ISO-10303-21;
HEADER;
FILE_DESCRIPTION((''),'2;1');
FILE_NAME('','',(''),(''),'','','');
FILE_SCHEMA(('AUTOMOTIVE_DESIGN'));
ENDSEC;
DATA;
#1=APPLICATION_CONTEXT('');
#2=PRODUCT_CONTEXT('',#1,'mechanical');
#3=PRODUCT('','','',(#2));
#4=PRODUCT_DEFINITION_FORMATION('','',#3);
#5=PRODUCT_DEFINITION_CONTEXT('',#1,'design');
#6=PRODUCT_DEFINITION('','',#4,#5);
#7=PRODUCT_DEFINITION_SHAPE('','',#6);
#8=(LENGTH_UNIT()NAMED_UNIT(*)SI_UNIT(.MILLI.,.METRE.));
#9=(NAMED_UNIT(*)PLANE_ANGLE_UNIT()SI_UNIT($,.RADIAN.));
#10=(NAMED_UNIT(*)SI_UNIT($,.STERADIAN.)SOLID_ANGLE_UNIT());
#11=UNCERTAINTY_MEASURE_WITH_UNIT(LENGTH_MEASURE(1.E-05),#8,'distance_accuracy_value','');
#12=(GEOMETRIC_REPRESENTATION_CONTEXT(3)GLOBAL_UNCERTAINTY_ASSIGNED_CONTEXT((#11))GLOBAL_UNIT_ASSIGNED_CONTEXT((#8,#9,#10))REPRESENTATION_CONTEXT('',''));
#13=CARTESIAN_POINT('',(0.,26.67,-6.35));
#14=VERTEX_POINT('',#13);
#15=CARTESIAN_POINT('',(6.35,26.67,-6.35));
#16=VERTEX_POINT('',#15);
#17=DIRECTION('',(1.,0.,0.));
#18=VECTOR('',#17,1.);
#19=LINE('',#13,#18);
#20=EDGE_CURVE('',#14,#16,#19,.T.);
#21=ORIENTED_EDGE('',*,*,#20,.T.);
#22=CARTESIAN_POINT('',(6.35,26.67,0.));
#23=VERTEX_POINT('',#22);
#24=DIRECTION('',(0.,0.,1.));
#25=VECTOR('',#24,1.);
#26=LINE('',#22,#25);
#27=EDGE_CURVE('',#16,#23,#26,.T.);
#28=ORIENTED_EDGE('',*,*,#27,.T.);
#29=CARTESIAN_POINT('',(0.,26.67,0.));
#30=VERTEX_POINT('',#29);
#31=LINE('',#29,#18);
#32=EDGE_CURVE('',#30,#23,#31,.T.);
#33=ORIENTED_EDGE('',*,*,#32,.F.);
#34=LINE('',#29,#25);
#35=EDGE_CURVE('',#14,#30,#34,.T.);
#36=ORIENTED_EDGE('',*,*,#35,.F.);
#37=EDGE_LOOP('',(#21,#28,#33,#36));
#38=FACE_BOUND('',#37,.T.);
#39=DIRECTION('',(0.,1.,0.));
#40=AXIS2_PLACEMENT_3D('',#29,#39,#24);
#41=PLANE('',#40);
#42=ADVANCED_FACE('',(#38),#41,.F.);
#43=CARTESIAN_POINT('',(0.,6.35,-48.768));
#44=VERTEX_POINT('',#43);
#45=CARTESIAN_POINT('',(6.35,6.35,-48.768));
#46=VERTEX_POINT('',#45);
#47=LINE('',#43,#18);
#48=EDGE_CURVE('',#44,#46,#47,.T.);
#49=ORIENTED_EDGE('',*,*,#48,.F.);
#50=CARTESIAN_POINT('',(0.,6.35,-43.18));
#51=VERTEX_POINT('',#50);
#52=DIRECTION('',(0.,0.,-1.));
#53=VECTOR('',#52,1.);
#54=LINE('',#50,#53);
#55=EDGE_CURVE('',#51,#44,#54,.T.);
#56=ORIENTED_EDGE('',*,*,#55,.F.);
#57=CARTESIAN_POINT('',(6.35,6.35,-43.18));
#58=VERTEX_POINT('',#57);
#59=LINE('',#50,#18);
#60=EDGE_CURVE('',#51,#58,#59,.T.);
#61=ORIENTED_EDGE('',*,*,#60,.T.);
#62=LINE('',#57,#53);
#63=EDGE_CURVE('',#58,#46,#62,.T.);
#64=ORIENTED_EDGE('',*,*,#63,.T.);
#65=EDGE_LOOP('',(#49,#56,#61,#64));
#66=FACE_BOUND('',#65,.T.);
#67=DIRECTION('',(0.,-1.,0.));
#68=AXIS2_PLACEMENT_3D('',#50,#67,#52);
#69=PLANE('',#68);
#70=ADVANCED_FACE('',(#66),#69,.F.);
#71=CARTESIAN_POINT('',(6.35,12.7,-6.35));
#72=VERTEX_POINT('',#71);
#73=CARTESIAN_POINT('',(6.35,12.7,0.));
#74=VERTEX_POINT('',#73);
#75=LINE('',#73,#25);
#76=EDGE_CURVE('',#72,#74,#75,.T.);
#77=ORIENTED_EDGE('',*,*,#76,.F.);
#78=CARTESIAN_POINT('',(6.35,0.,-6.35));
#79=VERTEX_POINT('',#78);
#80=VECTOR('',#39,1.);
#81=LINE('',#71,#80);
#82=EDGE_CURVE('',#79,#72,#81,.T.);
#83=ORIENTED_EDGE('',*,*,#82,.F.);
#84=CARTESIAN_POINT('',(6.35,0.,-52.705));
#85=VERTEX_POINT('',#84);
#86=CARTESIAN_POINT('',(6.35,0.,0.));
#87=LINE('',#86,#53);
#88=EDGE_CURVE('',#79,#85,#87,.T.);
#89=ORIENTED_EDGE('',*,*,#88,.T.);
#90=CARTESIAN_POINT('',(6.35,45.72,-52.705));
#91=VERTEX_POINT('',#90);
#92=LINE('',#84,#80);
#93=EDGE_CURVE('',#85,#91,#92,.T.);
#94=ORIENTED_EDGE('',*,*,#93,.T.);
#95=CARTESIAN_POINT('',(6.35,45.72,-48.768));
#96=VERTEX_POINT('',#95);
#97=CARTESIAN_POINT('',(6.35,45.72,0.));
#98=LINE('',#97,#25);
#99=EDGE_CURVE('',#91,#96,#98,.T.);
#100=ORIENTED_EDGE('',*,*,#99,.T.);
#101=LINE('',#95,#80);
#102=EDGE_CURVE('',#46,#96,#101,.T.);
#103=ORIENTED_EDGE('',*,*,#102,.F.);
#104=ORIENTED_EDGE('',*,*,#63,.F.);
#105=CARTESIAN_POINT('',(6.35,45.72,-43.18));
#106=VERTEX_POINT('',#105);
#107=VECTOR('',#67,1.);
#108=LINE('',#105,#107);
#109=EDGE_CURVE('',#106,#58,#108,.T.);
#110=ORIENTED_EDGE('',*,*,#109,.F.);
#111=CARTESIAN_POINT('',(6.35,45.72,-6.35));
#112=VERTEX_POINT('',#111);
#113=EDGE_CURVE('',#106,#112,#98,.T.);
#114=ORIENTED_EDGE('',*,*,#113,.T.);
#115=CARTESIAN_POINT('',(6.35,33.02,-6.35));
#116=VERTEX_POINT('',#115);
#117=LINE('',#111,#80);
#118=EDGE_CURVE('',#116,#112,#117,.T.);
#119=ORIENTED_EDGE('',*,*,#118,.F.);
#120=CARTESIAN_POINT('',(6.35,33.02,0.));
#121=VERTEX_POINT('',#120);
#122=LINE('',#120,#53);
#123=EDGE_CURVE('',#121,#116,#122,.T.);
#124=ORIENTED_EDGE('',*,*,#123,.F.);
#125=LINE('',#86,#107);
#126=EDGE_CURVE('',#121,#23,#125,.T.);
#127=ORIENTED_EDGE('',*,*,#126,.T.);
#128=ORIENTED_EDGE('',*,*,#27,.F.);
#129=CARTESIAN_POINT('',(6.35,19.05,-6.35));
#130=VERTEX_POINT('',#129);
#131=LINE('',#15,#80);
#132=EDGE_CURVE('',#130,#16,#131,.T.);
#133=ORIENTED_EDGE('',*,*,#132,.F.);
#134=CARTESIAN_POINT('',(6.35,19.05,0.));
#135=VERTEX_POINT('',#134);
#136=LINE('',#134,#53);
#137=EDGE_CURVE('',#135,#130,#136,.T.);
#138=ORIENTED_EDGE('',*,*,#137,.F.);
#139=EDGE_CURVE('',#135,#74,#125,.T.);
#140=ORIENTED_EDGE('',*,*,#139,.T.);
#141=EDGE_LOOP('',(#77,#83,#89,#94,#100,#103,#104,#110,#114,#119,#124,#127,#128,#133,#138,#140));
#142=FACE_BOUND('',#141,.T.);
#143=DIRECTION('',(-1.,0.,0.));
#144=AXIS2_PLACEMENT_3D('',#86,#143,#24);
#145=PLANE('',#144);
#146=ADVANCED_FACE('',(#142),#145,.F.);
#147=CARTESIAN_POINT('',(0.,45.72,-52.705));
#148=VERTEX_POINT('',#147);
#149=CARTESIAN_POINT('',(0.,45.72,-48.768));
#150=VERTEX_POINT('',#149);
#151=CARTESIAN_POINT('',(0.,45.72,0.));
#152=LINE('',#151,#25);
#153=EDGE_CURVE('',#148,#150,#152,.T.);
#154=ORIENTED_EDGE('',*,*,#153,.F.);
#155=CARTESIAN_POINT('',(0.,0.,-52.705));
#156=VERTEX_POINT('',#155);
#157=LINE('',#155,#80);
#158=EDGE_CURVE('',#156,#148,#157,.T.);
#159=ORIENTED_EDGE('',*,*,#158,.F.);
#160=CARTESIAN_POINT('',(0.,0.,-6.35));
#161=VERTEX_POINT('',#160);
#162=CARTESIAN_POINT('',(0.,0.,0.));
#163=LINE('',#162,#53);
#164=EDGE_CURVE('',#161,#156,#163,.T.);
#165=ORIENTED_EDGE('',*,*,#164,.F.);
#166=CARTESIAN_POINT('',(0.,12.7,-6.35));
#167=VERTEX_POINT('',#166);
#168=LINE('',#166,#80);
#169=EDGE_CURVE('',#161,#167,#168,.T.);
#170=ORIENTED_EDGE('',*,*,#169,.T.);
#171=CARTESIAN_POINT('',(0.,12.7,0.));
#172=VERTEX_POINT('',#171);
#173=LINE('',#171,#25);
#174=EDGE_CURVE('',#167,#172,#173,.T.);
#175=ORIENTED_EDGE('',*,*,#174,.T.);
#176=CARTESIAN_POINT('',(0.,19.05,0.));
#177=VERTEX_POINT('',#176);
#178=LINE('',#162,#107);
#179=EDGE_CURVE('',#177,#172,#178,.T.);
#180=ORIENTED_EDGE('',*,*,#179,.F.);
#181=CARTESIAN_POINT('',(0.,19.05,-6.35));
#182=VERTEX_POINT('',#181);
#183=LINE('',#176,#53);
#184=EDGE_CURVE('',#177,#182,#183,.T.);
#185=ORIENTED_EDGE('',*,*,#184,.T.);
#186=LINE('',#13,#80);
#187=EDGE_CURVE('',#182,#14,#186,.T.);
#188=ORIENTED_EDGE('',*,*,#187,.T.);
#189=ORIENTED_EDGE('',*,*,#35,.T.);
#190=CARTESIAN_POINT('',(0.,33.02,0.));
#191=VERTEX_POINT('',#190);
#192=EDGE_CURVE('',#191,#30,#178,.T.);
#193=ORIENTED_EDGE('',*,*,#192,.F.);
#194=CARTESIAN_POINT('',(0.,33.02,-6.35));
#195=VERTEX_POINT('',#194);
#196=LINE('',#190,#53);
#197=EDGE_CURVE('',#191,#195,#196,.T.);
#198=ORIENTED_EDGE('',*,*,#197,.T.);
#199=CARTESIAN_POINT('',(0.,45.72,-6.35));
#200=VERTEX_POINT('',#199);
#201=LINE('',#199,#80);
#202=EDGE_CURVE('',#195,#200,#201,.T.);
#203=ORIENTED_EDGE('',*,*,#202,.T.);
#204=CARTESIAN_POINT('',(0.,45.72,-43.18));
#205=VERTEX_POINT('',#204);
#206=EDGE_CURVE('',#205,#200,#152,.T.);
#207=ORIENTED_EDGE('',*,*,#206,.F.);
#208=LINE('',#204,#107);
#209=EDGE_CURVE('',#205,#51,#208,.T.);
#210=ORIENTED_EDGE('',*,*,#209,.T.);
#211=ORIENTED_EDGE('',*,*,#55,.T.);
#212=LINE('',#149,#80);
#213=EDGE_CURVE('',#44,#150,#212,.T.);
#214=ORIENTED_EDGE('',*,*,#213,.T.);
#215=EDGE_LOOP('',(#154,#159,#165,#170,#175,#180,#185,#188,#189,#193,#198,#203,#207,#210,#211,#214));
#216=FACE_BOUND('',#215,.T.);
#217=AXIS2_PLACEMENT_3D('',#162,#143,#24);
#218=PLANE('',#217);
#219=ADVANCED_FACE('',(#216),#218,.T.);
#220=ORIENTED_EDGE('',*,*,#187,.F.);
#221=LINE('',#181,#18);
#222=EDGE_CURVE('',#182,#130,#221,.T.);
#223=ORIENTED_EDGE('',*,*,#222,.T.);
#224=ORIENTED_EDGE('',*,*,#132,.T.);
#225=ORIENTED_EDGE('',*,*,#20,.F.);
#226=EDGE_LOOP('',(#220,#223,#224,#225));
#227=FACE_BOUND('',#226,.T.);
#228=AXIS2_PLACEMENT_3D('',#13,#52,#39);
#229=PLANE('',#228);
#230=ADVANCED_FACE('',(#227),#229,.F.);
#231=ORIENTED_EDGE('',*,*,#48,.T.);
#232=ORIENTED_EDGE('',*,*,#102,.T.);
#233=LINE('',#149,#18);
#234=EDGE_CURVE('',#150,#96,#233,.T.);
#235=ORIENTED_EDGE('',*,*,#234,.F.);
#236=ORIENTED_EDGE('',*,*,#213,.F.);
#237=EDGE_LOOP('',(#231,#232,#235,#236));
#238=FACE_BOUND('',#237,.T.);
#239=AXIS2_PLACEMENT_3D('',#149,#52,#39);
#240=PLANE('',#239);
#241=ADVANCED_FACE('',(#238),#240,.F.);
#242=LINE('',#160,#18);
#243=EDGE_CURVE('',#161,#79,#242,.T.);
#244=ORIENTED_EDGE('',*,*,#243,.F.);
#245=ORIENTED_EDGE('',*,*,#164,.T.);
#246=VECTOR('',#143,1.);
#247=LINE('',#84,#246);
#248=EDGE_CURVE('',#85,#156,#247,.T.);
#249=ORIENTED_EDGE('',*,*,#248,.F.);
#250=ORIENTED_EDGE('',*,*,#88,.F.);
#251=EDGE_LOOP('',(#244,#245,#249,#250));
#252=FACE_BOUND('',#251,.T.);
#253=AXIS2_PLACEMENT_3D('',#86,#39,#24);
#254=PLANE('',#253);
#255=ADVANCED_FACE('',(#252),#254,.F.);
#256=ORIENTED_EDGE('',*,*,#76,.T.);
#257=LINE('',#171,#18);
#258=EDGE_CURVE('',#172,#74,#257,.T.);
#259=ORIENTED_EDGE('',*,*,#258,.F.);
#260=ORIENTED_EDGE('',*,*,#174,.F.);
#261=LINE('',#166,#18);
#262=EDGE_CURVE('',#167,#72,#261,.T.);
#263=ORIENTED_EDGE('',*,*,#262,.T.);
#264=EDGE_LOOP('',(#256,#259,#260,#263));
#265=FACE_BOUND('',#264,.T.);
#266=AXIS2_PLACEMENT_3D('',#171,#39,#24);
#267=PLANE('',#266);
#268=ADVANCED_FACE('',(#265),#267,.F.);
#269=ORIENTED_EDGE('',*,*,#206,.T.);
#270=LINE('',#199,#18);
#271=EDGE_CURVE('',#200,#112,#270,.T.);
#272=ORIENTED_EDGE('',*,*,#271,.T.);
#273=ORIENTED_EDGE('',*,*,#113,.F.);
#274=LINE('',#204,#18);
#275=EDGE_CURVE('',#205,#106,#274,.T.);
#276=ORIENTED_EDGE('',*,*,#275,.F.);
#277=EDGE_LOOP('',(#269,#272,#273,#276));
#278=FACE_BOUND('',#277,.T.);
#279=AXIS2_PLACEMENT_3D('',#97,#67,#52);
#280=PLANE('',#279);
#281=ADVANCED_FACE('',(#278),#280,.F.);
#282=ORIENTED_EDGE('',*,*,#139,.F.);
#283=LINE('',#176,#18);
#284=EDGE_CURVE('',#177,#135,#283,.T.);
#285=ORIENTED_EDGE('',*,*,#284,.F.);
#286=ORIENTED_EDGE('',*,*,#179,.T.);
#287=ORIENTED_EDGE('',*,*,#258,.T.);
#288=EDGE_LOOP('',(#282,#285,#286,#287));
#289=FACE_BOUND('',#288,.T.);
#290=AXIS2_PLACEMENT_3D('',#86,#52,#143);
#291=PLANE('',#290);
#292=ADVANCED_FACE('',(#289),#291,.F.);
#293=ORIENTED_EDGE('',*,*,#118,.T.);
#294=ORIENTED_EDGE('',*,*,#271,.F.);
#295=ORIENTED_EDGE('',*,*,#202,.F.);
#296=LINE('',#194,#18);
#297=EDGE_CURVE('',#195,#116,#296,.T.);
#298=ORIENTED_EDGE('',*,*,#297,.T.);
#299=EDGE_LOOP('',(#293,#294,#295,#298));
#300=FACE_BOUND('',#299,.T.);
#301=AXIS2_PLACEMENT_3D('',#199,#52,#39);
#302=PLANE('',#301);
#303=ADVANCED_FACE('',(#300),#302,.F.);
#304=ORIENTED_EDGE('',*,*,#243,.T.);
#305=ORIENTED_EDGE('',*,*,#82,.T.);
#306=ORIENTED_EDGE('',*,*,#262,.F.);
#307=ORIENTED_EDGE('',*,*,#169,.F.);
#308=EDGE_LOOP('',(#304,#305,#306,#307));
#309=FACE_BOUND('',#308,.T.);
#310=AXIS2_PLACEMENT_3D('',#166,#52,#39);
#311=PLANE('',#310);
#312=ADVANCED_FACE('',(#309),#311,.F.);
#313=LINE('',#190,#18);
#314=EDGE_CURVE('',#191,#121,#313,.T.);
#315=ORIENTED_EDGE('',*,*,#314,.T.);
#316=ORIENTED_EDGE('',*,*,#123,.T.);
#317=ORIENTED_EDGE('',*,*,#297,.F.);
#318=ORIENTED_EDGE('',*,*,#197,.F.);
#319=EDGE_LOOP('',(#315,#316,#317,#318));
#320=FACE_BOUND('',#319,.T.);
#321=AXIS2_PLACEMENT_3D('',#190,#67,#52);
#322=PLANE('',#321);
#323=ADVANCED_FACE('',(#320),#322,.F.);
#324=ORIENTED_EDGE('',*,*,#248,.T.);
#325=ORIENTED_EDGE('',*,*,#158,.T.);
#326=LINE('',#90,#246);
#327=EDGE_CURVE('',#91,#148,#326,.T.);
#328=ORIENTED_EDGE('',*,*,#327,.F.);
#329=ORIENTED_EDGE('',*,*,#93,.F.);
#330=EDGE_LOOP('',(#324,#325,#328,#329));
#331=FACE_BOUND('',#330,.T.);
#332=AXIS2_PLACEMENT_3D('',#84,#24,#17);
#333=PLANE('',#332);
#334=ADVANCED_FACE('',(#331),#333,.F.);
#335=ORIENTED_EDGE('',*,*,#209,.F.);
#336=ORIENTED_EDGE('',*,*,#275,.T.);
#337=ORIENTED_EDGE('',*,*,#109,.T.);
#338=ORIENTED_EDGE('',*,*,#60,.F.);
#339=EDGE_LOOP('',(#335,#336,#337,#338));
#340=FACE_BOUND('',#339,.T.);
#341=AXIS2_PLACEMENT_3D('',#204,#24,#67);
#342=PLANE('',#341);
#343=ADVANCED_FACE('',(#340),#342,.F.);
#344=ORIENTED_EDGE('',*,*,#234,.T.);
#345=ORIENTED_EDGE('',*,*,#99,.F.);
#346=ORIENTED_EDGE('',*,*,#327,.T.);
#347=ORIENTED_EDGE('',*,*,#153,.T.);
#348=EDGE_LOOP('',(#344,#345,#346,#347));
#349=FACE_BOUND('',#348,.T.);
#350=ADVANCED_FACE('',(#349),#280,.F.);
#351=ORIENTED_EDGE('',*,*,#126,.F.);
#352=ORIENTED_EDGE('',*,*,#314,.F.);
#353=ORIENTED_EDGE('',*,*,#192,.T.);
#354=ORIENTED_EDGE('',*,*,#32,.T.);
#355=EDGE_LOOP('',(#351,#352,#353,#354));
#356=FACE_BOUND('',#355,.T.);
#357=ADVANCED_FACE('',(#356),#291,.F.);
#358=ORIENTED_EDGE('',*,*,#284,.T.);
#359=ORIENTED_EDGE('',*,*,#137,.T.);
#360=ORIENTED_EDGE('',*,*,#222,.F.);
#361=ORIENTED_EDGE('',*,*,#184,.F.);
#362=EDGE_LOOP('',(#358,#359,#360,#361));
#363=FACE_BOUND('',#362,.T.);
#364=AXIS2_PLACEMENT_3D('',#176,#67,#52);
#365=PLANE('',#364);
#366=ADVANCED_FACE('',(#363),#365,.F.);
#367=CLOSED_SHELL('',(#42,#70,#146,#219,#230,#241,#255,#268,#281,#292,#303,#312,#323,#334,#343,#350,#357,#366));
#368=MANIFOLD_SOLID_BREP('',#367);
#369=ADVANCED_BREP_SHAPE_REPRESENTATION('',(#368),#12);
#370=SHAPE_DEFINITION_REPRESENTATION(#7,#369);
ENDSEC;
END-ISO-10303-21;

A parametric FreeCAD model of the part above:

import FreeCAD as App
import Part
import Sketcher

V = App.Vector
Q = App.Units.Quantity


def add_polygon(sketch, points):
    """Adds a closed chain of lines whose ends are joined by coincident constraints."""
    first, n = sketch.GeometryCount, len(points)
    for a, b in zip(points, points[1:] + points[:1]):
        sketch.addGeometry(Part.LineSegment(App.Vector(*a, 0), App.Vector(*b, 0)), False)
    for i in range(n):
        sketch.addConstraint(Sketcher.Constraint("Coincident", first + i, 2, first + (i + 1) % n, 1))

doc = App.newDocument("Part")
body = doc.addObject("PartDesign::Body", "Body")

# Sketch on YZ plane
sketch1 = doc.addObject("Sketcher::SketchObject", "Sketch")
body.addObject(sketch1)
sketch1.AttachmentSupport = (doc.YZ_Plane, [""])
sketch1.MapMode = "FlatFace"
add_polygon(sketch1, [(46, 0), (0, 0), (0, -53), (46, -53)])  # lines 0-3
sketch1.addConstraint([
    Sketcher.Constraint("Horizontal", 0),
    Sketcher.Constraint("Vertical", 1),
    Sketcher.Constraint("Horizontal", 2),
    Sketcher.Constraint("Vertical", 3),
    Sketcher.Constraint("Coincident", 0, 2, -1, 1),
    Sketcher.Constraint("DistanceX", 0, 2, 0, 1, Q("1.8 in")),
    Sketcher.Constraint("DistanceY", 1, 2, 1, 1, Q("2.075 in")),
])
pad1 = doc.addObject("PartDesign::Pad", "Pad")
body.addObject(pad1)
pad1.Profile = sketch1
pad1.Length = Q("0.25 in")

# Sketch on YZ plane
sketch2 = doc.addObject("Sketcher::SketchObject", "Sketch001")
body.addObject(sketch2)
sketch2.AttachmentSupport = (doc.YZ_Plane, [""])
sketch2.MapMode = "FlatFace"
sketch2.AttachmentOffset = App.Placement(V(0, 0, 0.25 * 25.4), App.Rotation())
add_polygon(sketch2, [(46, 0), (33, 0), (33, -6), (46, -6)])  # lines 0-3
add_polygon(sketch2, [(13, 0), (0, 0), (0, -6), (13, -6)])  # lines 4-7
add_polygon(sketch2, [(27, 0), (19, 0), (19, -6), (27, -6)])  # lines 8-11
add_polygon(sketch2, [(46, -43), (6, -43), (6, -49), (46, -49)])  # lines 12-15
sketch2.addConstraint([
    Sketcher.Constraint("Horizontal", 0),
    Sketcher.Constraint("Vertical", 1),
    Sketcher.Constraint("Horizontal", 2),
    Sketcher.Constraint("Vertical", 3),
    Sketcher.Constraint("Horizontal", 4),
    Sketcher.Constraint("Vertical", 5),
    Sketcher.Constraint("Horizontal", 6),
    Sketcher.Constraint("Vertical", 7),
    Sketcher.Constraint("Horizontal", 8),
    Sketcher.Constraint("Vertical", 9),
    Sketcher.Constraint("Horizontal", 10),
    Sketcher.Constraint("Vertical", 11),
    Sketcher.Constraint("Horizontal", 12),
    Sketcher.Constraint("Vertical", 13),
    Sketcher.Constraint("Horizontal", 14),
    Sketcher.Constraint("Vertical", 15),
    Sketcher.Constraint("Coincident", 4, 2, -1, 1),
    Sketcher.Constraint("PointOnObject", 0, 2, -1),
    Sketcher.Constraint("PointOnObject", 8, 2, -1),
    Sketcher.Constraint("Horizontal", 2, 2, 5, 2),
    Sketcher.Constraint("Horizontal", 6, 2, 9, 2),
    Sketcher.Constraint("Vertical", 3, 2, 14, 2),
    Sketcher.Constraint("Equal", 2, 4),
    Sketcher.Constraint("DistanceX", 0, 2, 0, 1, Q("0.5 in")),
    Sketcher.Constraint("DistanceX", 8, 2, 8, 1, Q("0.3 in")),
    Sketcher.Constraint("DistanceX", 12, 2, 12, 1, Q("1.55 in")),
    Sketcher.Constraint("DistanceY", 1, 2, 1, 1, Q("0.25 in")),
    Sketcher.Constraint("DistanceY", 13, 2, 13, 1, Q("0.22 in")),
    Sketcher.Constraint("DistanceX", -1, 1, 0, 2, Q("1.3 in")),
    Sketcher.Constraint("DistanceY", 12, 2, -1, 1, Q("1.7 in")),
    Sketcher.Constraint("DistanceX", 12, 2, 9, 2, Q("0.5 in")),
])
pocket1 = doc.addObject("PartDesign::Pocket", "Pocket")
body.addObject(pocket1)
pocket1.Profile = sketch2
pocket1.Type = "ThroughAll"

doc.recompute()
